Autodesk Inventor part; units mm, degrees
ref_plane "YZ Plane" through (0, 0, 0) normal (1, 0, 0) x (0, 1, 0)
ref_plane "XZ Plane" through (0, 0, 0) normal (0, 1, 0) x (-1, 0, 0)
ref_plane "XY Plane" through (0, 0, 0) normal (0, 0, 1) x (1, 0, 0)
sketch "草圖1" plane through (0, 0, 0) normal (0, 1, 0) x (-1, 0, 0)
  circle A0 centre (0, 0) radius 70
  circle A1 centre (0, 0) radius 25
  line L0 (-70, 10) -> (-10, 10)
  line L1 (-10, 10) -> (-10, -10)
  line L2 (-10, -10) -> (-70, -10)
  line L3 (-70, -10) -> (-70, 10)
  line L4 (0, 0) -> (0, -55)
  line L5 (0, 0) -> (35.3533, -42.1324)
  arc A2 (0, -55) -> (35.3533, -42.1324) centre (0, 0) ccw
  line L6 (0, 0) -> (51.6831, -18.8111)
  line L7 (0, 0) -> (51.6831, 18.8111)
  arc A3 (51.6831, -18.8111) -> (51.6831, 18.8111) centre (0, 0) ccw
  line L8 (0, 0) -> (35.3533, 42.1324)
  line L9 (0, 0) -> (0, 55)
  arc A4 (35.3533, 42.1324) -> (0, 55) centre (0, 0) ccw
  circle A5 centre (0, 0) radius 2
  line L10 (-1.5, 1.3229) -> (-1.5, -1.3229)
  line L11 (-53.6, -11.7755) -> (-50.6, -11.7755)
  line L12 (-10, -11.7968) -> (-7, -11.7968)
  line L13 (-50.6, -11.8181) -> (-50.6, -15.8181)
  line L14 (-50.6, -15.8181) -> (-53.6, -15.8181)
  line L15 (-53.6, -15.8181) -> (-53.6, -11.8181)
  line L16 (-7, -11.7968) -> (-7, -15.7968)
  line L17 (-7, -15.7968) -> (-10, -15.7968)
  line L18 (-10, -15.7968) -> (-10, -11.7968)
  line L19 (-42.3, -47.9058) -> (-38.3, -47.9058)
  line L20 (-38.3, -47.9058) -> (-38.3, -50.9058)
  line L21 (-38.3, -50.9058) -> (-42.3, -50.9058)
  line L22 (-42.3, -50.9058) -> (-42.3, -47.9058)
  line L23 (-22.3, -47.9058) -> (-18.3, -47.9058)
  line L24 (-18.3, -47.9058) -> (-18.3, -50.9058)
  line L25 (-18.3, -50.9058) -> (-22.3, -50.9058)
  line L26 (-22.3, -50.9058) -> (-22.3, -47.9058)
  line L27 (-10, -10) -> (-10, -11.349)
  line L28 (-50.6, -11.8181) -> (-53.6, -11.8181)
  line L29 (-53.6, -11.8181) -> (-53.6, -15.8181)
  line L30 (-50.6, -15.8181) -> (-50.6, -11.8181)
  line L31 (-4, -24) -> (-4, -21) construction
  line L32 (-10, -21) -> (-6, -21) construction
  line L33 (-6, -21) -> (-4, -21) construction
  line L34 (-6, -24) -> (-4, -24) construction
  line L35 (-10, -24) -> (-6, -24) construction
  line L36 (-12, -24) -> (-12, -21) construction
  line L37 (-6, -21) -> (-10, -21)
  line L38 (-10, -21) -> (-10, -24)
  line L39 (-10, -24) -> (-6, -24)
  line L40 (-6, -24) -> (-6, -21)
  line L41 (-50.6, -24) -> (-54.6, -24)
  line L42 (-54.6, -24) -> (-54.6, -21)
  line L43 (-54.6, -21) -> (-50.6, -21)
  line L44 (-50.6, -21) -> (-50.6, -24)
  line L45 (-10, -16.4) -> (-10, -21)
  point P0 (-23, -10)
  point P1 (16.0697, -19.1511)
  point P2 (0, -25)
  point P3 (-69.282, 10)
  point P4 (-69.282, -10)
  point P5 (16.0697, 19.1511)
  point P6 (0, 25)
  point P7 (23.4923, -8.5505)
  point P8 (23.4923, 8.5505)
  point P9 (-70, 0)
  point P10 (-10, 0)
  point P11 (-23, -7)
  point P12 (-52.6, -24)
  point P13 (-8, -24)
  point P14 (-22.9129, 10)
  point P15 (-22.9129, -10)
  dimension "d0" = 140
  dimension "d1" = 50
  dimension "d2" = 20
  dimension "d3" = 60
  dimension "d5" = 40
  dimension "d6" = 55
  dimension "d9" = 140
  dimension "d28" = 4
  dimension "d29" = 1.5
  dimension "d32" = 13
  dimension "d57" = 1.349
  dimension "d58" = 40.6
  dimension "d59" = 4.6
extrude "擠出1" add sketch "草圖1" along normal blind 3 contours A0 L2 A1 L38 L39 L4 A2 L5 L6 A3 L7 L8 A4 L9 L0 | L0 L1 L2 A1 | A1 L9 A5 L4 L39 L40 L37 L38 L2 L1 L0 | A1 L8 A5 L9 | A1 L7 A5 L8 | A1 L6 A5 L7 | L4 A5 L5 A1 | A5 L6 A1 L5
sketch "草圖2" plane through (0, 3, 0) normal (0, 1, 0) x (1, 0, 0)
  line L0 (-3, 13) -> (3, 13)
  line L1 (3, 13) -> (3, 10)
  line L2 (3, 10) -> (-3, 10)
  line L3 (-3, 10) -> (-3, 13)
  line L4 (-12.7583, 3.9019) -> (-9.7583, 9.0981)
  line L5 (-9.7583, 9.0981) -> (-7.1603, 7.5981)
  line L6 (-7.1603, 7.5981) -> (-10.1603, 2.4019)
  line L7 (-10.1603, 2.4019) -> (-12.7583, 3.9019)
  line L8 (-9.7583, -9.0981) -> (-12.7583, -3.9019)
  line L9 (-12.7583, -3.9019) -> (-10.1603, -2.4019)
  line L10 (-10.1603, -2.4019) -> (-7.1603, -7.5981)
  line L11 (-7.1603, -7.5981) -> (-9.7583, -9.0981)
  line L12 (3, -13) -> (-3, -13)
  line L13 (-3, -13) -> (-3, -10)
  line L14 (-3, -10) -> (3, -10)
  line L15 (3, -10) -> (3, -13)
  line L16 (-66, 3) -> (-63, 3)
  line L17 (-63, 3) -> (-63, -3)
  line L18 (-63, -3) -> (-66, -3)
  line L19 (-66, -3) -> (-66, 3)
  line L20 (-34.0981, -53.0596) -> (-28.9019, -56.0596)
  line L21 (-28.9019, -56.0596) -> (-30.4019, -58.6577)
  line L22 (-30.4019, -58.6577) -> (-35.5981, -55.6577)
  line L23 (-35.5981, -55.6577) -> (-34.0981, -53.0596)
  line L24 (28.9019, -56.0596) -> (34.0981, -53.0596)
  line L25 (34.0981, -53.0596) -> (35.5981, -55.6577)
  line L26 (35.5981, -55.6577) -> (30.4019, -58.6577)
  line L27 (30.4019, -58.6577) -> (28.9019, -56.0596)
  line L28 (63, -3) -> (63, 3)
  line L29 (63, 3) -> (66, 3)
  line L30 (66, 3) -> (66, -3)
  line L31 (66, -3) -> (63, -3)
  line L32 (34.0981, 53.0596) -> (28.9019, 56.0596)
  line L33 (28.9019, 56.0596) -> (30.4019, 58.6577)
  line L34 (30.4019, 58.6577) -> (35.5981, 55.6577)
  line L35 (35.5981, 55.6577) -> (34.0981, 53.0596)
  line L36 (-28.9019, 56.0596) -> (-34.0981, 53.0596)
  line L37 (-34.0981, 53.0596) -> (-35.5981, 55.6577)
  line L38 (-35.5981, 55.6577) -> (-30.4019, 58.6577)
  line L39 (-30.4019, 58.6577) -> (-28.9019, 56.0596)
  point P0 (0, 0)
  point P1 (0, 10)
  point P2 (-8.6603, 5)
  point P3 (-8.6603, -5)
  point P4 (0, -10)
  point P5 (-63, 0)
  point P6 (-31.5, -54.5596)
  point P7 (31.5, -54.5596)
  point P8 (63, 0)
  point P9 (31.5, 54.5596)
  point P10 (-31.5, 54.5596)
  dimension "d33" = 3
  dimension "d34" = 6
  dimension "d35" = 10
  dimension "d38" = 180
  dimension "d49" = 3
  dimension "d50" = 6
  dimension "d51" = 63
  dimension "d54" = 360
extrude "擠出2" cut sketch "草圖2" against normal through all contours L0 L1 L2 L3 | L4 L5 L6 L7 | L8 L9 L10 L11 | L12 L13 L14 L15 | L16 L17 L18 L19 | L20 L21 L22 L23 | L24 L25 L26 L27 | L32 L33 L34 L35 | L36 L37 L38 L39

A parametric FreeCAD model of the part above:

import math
import FreeCAD as App
import Part
import Sketcher

V = App.Vector
Q = App.Units.Quantity


def add_polygon(sketch, points):
    """Adds a closed chain of lines whose ends are joined by coincident constraints."""
    first, n = sketch.GeometryCount, len(points)
    for a, b in zip(points, points[1:] + points[:1]):
        sketch.addGeometry(Part.LineSegment(App.Vector(*a, 0), App.Vector(*b, 0)), False)
    for i in range(n):
        sketch.addConstraint(Sketcher.Constraint("Coincident", first + i, 2, first + (i + 1) % n, 1))

doc = App.newDocument("Part")
body = doc.addObject("PartDesign::Body", "Body")

# Sketch on XZ plane
sketch1 = body.newObject("Sketcher::SketchObject", "Sketch")
sketch1.AttachmentSupport = (doc.getObject("XZ_Plane"), [""])
sketch1.MapMode = "FlatFace"
sketch1.addGeometry(Part.ArcOfCircle(Part.Circle(V(0, 0, 0), V(0, 0, 1), 70), math.radians(8.213211), math.radians(351.786789)), False)  # 0
sketch1.addGeometry(Part.LineSegment(V(69.282032, 10, 0), V(22.912878, 10, 0)), False)  # 1
sketch1.addGeometry(Part.ArcOfCircle(Part.Circle(V(0, 0, 0), V(0, 0, 1), 25), math.radians(-23.578178), math.radians(23.578178)), False)  # 2
sketch1.addGeometry(Part.LineSegment(V(22.912878, -10, 0), V(69.282032, -10, 0)), False)  # 3
add_polygon(sketch1, [(10, -24), (10, -21), (6, -21), (6, -24)])  # lines 4-7
sketch1.addGeometry(Part.LineSegment(V(0, -55, 0), V(0, -25, 0)), False)  # 8
sketch1.addGeometry(Part.ArcOfCircle(Part.Circle(V(0, 0, 0), V(0, 0, 1), 25), math.radians(-130.000015), math.radians(-90)), False)  # 9
sketch1.addGeometry(Part.LineSegment(V(-16.069695, -19.151107, 0), V(-35.3533, -42.1324, 0)), False)  # 10
sketch1.addGeometry(Part.ArcOfCircle(Part.Circle(V(0, 0, 0), V(0, 0, 1), 54.999954), math.radians(-130.000015), math.radians(-90)), False)  # 11
sketch1.addGeometry(Part.LineSegment(V(-51.6831, -18.8111, 0), V(-23.492317, -8.5505, 0)), False)  # 12
sketch1.addGeometry(Part.ArcOfCircle(Part.Circle(V(0, 0, 0), V(0, 0, 1), 25), math.radians(160.00001), math.radians(199.99999)), False)  # 13
sketch1.addGeometry(Part.LineSegment(V(-23.492317, 8.5505, 0), V(-51.6831, 18.8111, 0)), False)  # 14
sketch1.addGeometry(Part.ArcOfCircle(Part.Circle(V(0, 0, 0), V(0, 0, 1), 55.000003), math.radians(160.00001), math.radians(199.99999)), False)  # 15
sketch1.addGeometry(Part.LineSegment(V(-35.3533, 42.1324, 0), V(-16.069695, 19.151107, 0)), False)  # 16
sketch1.addGeometry(Part.ArcOfCircle(Part.Circle(V(0, 0, 0), V(0, 0, 1), 25), math.radians(90), math.radians(130.000015)), False)  # 17
sketch1.addGeometry(Part.LineSegment(V(0, 25, 0), V(0, 55, 0)), False)  # 18
sketch1.addGeometry(Part.ArcOfCircle(Part.Circle(V(0, 0, 0), V(0, 0, 1), 55.000003), math.radians(90), math.radians(130.000015)), False)  # 19
add_polygon(sketch1, [(42.3, -50.9058), (42.3, -47.9058), (38.3, -47.9058), (38.3, -50.9058)])  # lines 20-23
add_polygon(sketch1, [(22.3, -50.9058), (22.3, -47.9058), (18.3, -47.9058), (18.3, -50.9058)])  # lines 24-27
add_polygon(sketch1, [(50.6, -21), (50.6, -24), (54.6, -24), (54.6, -21)])  # lines 28-31
add_polygon(sketch1, [(53.6, -11.8181), (50.6, -11.8181), (50.6, -15.8181), (53.6, -15.8181)])  # lines 32-35
add_polygon(sketch1, [(7, -15.7968), (10, -15.7968), (10, -11.7968), (7, -11.7968)])  # lines 36-39
sketch1.addGeometry(Part.Circle(V(0, 0, 0), V(0, 0, 1), 2), False)  # 40
sketch1.addConstraint(Sketcher.Constraint("Coincident", 0, 1, 1, 1))
sketch1.addConstraint(Sketcher.Constraint("Coincident", 1, 2, 2, 2))
sketch1.addConstraint(Sketcher.Constraint("Coincident", 2, 1, 3, 1))
sketch1.addConstraint(Sketcher.Constraint("Coincident", 3, 2, 0, 2))
sketch1.addConstraint(Sketcher.Constraint("Coincident", 8, 2, 9, 2))
sketch1.addConstraint(Sketcher.Constraint("Coincident", 9, 1, 10, 1))
sketch1.addConstraint(Sketcher.Constraint("Coincident", 10, 2, 11, 1))
sketch1.addConstraint(Sketcher.Constraint("Coincident", 11, 2, 8, 1))
sketch1.addConstraint(Sketcher.Constraint("Coincident", 12, 2, 13, 2))
sketch1.addConstraint(Sketcher.Constraint("Coincident", 13, 1, 14, 1))
sketch1.addConstraint(Sketcher.Constraint("Coincident", 14, 2, 15, 1))
sketch1.addConstraint(Sketcher.Constraint("Coincident", 15, 2, 12, 1))
sketch1.addConstraint(Sketcher.Constraint("Coincident", 16, 2, 17, 2))
sketch1.addConstraint(Sketcher.Constraint("Coincident", 17, 1, 18, 1))
sketch1.addConstraint(Sketcher.Constraint("Coincident", 18, 2, 19, 1))
sketch1.addConstraint(Sketcher.Constraint("Coincident", 19, 2, 16, 1))
sketch1.addConstraint(Sketcher.Constraint("Horizontal", 1))
sketch1.addConstraint(Sketcher.Constraint("Horizontal", 3))
sketch1.addConstraint(Sketcher.Constraint("Vertical", 4))
sketch1.addConstraint(Sketcher.Constraint("Horizontal", 5))
sketch1.addConstraint(Sketcher.Constraint("Vertical", 6))
sketch1.addConstraint(Sketcher.Constraint("Horizontal", 7))
sketch1.addConstraint(Sketcher.Constraint("Vertical", 8))
sketch1.addConstraint(Sketcher.Constraint("Vertical", 18))
sketch1.addConstraint(Sketcher.Constraint("Vertical", 20))
sketch1.addConstraint(Sketcher.Constraint("Horizontal", 21))
sketch1.addConstraint(Sketcher.Constraint("Vertical", 22))
sketch1.addConstraint(Sketcher.Constraint("Horizontal", 23))
sketch1.addConstraint(Sketcher.Constraint("Vertical", 24))
sketch1.addConstraint(Sketcher.Constraint("Horizontal", 25))
sketch1.addConstraint(Sketcher.Constraint("Vertical", 26))
sketch1.addConstraint(Sketcher.Constraint("Horizontal", 27))
sketch1.addConstraint(Sketcher.Constraint("Vertical", 28))
sketch1.addConstraint(Sketcher.Constraint("Horizontal", 29))
sketch1.addConstraint(Sketcher.Constraint("Vertical", 30))
sketch1.addConstraint(Sketcher.Constraint("Horizontal", 31))
sketch1.addConstraint(Sketcher.Constraint("Horizontal", 32))
sketch1.addConstraint(Sketcher.Constraint("Vertical", 33))
sketch1.addConstraint(Sketcher.Constraint("Horizontal", 34))
sketch1.addConstraint(Sketcher.Constraint("Vertical", 35))
sketch1.addConstraint(Sketcher.Constraint("Horizontal", 36))
sketch1.addConstraint(Sketcher.Constraint("Vertical", 37))
sketch1.addConstraint(Sketcher.Constraint("Horizontal", 38))
sketch1.addConstraint(Sketcher.Constraint("Vertical", 39))
sketch1.addConstraint(Sketcher.Constraint("Coincident", 0, 3, -1, 1))
sketch1.addConstraint(Sketcher.Constraint("Coincident", 2, 3, -1, 1))
sketch1.addConstraint(Sketcher.Constraint("Coincident", 9, 3, -1, 1))
sketch1.addConstraint(Sketcher.Constraint("Coincident", 11, 3, -1, 1))
sketch1.addConstraint(Sketcher.Constraint("Coincident", 13, 3, -1, 1))
sketch1.addConstraint(Sketcher.Constraint("Coincident", 15, 3, -1, 1))
sketch1.addConstraint(Sketcher.Constraint("Coincident", 17, 3, -1, 1))
sketch1.addConstraint(Sketcher.Constraint("Coincident", 19, 3, -1, 1))
sketch1.addConstraint(Sketcher.Constraint("Coincident", 40, 3, -1, 1))
sketch1.addConstraint(Sketcher.Constraint("Equal", 2, 9))
sketch1.addConstraint(Sketcher.Constraint("Equal", 9, 13))
sketch1.addConstraint(Sketcher.Constraint("Equal", 11, 15))
sketch1.addConstraint(Sketcher.Constraint("Equal", 13, 17))
sketch1.addConstraint(Sketcher.Constraint("Equal", 15, 19))
sketch1.addConstraint(Sketcher.Constraint("PointOnObject", 8, 2, -2))
sketch1.addConstraint(Sketcher.Constraint("PointOnObject", 17, 1, -2))
sketch1.addConstraint(Sketcher.Constraint("Horizontal", 21, 2, 24, 2))
sketch1.addConstraint(Sketcher.Constraint("Horizontal", 23, 2, 26, 2))
sketch1.addConstraint(Sketcher.Constraint("Horizontal", 7, 2, 28, 2))
sketch1.addConstraint(Sketcher.Constraint("Horizontal", 5, 2, 30, 2))
sketch1.addConstraint(Sketcher.Constraint("Vertical", 1, 2, 2, 1))
sketch1.addConstraint(Sketcher.Constraint("Vertical", 12, 2, 13, 1))
sketch1.addConstraint(Sketcher.Constraint("Vertical", 14, 2, 15, 2))
sketch1.addConstraint(Sketcher.Constraint("Vertical", 9, 1, 16, 2))
sketch1.addConstraint(Sketcher.Constraint("Vertical", 10, 2, 19, 2))
sketch1.addConstraint(Sketcher.Constraint("Vertical", 31, 2, 32, 2))
sketch1.addConstraint(Sketcher.Constraint("Vertical", 7, 2, 36, 2))
sketch1.addConstraint(Sketcher.Constraint("Equal", 7, 21))
sketch1.addConstraint(Sketcher.Constraint("Equal", 23, 25))
sketch1.addConstraint(Sketcher.Constraint("Equal", 27, 29))
sketch1.addConstraint(Sketcher.Constraint("Equal", 34, 36))
sketch1.addConstraint(Sketcher.Constraint("Equal", 38, 4))
sketch1.addConstraint(Sketcher.Constraint("Equal", 6, 20))
sketch1.addConstraint(Sketcher.Constraint("Equal", 31, 33))
sketch1.addConstraint(Sketcher.Constraint("Equal", 35, 37))
sketch1.addConstraint(Sketcher.Constraint("Diameter", 40, Q("4 mm")))
sketch1.addConstraint(Sketcher.Constraint("Radius", 0, Q("70 mm")))
sketch1.addConstraint(Sketcher.Constraint("Radius", 2, Q("25 mm")))
sketch1.addConstraint(Sketcher.Constraint("Radius", 11, Q("55 mm")))
sketch1.addConstraint(Sketcher.Constraint("DistanceX", 5, 2, 5, 1, Q("4 mm")))
sketch1.addConstraint(Sketcher.Constraint("Angle", 12, Q("20 deg")))
sketch1.addConstraint(Sketcher.Constraint("Angle", 16, Q("-50 deg")))
sketch1.addConstraint(Sketcher.Constraint("DistanceY", 2, 1, 1, 2, Q("20 mm")))
sketch1.addConstraint(Sketcher.Constraint("DistanceY", 8, 2, 5, 2, Q("4 mm")))
sketch1.addConstraint(Sketcher.Constraint("DistanceX", 24, 2, 20, 2, Q("20 mm")))
sketch1.addConstraint(Sketcher.Constraint("DistanceX", 32, 2, 32, 1, Q("3 mm")))
sketch1.addConstraint(Sketcher.Constraint("DistanceX", -1, 1, 4, 2, Q("10 mm")))
sketch1.addConstraint(Sketcher.Constraint("DistanceX", -1, 1, 20, 2, Q("42.3 mm")))
sketch1.addConstraint(Sketcher.Constraint("DistanceX", -1, 1, 28, 2, Q("50.6 mm")))
sketch1.addConstraint(Sketcher.Constraint("DistanceY", 9, 1, 15, 2, Q("0.34 mm")))
sketch1.addConstraint(Sketcher.Constraint("DistanceY", 9, 1, -1, 1, Q("19.151 mm")))
sketch1.addConstraint(Sketcher.Constraint("DistanceY", 32, 2, -1, 1, Q("11.818 mm")))
sketch1.addConstraint(Sketcher.Constraint("DistanceY", 20, 2, -1, 1, Q("47.9058 mm")))
sketch1.addConstraint(Sketcher.Constraint("DistanceY", 36, 2, -1, 1, Q("15.7968 mm")))
pad1 = body.newObject("PartDesign::Pad", "Pad")
pad1.Profile = sketch1
pad1.Length = 3
pad1.Reversed = True

# Sketch on XZ plane
sketch2 = body.newObject("Sketcher::SketchObject", "Sketch001")
sketch2.AttachmentSupport = (doc.getObject("XZ_Plane"), [""])
sketch2.MapMode = "FlatFace"
sketch2.AttachmentOffset = App.Placement(V(0, 0, -3), App.Rotation())
add_polygon(sketch2, [(3, -13), (-3, -13), (-3, -10), (3, -10)])  # lines 0-3
add_polygon(sketch2, [(-9.7583, -9.0981), (-12.7583, -3.9019), (-10.1603, -2.4019), (-7.1603, -7.5981)])  # lines 4-7
add_polygon(sketch2, [(-12.7583, 3.9019), (-9.7583, 9.0981), (-7.1603, 7.5981), (-10.1603, 2.4019)])  # lines 8-11
add_polygon(sketch2, [(-3, 13), (3, 13), (3, 10), (-3, 10)])  # lines 12-15
add_polygon(sketch2, [(-63, -3), (-66, -3), (-66, 3), (-63, 3)])  # lines 16-19
add_polygon(sketch2, [(-28.9019, 56.0596), (-34.0981, 53.0596), (-35.5981, 55.6577), (-30.4019, 58.6577)])  # lines 20-23
add_polygon(sketch2, [(34.0981, 53.0596), (28.9019, 56.0596), (30.4019, 58.6577), (35.5981, 55.6577)])  # lines 24-27
add_polygon(sketch2, [(28.9019, -56.0596), (34.0981, -53.0596), (35.5981, -55.6577), (30.4019, -58.6577)])  # lines 28-31
add_polygon(sketch2, [(-34.0981, -53.0596), (-28.9019, -56.0596), (-30.4019, -58.6577), (-35.5981, -55.6577)])  # lines 32-35
sketch2.addConstraint(Sketcher.Constraint("Horizontal", 0))
sketch2.addConstraint(Sketcher.Constraint("Vertical", 1))
sketch2.addConstraint(Sketcher.Constraint("Horizontal", 2))
sketch2.addConstraint(Sketcher.Constraint("Vertical", 3))
sketch2.addConstraint(Sketcher.Constraint("Horizontal", 12))
sketch2.addConstraint(Sketcher.Constraint("Vertical", 13))
sketch2.addConstraint(Sketcher.Constraint("Horizontal", 14))
sketch2.addConstraint(Sketcher.Constraint("Vertical", 15))
sketch2.addConstraint(Sketcher.Constraint("Horizontal", 16))
sketch2.addConstraint(Sketcher.Constraint("Vertical", 17))
sketch2.addConstraint(Sketcher.Constraint("Horizontal", 18))
sketch2.addConstraint(Sketcher.Constraint("Vertical", 19))
sketch2.addConstraint(Sketcher.Constraint("Symmetric", 0, 2, 12, 2, -1, 1))
sketch2.addConstraint(Sketcher.Constraint("Symmetric", 2, 2, 14, 2, -1, 1))
sketch2.addConstraint(Sketcher.Constraint("Symmetric", 20, 2, 28, 2, -1, 1))
sketch2.addConstraint(Sketcher.Constraint("Symmetric", 21, 2, 29, 2, -1, 1))
sketch2.addConstraint(Sketcher.Constraint("Symmetric", 22, 2, 30, 2, -1, 1))
sketch2.addConstraint(Sketcher.Constraint("Symmetric", 23, 2, 31, 2, -1, 1))
sketch2.addConstraint(Sketcher.Constraint("Symmetric", 24, 2, 32, 2, -1, 1))
sketch2.addConstraint(Sketcher.Constraint("Symmetric", 25, 2, 33, 2, -1, 1))
sketch2.addConstraint(Sketcher.Constraint("Symmetric", 26, 2, 34, 2, -1, 1))
sketch2.addConstraint(Sketcher.Constraint("Symmetric", 27, 2, 35, 2, -1, 1))
sketch2.addConstraint(Sketcher.Constraint("Symmetric", 23, 2, 24, 2, -2))
sketch2.addConstraint(Sketcher.Constraint("Symmetric", 22, 2, 25, 2, -2))
sketch2.addConstraint(Sketcher.Constraint("Symmetric", 21, 2, 26, 2, -2))
sketch2.addConstraint(Sketcher.Constraint("Symmetric", 20, 2, 27, 2, -2))
sketch2.addConstraint(Sketcher.Constraint("Symmetric", 7, 2, 8, 2, -1))
sketch2.addConstraint(Sketcher.Constraint("Symmetric", 6, 2, 9, 2, -1))
sketch2.addConstraint(Sketcher.Constraint("Symmetric", 5, 2, 10, 2, -1))
sketch2.addConstraint(Sketcher.Constraint("Symmetric", 4, 2, 11, 2, -1))
sketch2.addConstraint(Sketcher.Constraint("Perpendicular", 4, 5))
sketch2.addConstraint(Sketcher.Constraint("Perpendicular", 5, 6))
sketch2.addConstraint(Sketcher.Constraint("Perpendicular", 6, 7))
sketch2.addConstraint(Sketcher.Constraint("Parallel", 7, 20))
sketch2.addConstraint(Sketcher.Constraint("Perpendicular", 20, 21))
sketch2.addConstraint(Sketcher.Constraint("Perpendicular", 21, 22))
sketch2.addConstraint(Sketcher.Constraint("Perpendicular", 22, 23))
sketch2.addConstraint(Sketcher.Constraint("Vertical", 3, 2, 12, 2))
sketch2.addConstraint(Sketcher.Constraint("Equal", 18, 1))
sketch2.addConstraint(Sketcher.Constraint("Equal", 14, 17))
sketch2.addConstraint(Sketcher.Constraint("Equal", 10, 20))
sketch2.addConstraint(Sketcher.Constraint("Equal", 11, 21))
sketch2.addConstraint(Sketcher.Constraint("DistanceX", 0, 2, 0, 1, Q("6 mm")))
sketch2.addConstraint(Sketcher.Constraint("DistanceX", 16, 2, 16, 1, Q("3 mm")))
sketch2.addConstraint(Sketcher.Constraint("Distance", 4, Q("6 mm")))
sketch2.addConstraint(Sketcher.Constraint("Distance", 5, Q("3 mm")))
sketch2.addConstraint(Sketcher.Constraint("DistanceY", 1, 2, -1, 1, Q("10 mm")))
sketch2.addConstraint(Sketcher.Constraint("DistanceY", 16, 2, -1, 1, Q("3 mm")))
sketch2.addConstraint(Sketcher.Constraint("DistanceX", 18, 2, -1, 1, Q("63 mm")))
sketch2.addConstraint(Sketcher.Constraint("DistanceX", 5, 2, 6, 2, Q("3 mm")))
sketch2.addConstraint(Sketcher.Constraint("DistanceY", 5, 2, 9, 2, Q("10 mm")))
sketch2.addConstraint(Sketcher.Constraint("DistanceX", 20, 2, -1, 1, Q("34.098 mm")))
sketch2.addConstraint(Sketcher.Constraint("DistanceX", 4, 2, -1, 1, Q("12.7583 mm")))
sketch2.addConstraint(Sketcher.Constraint("DistanceY", -1, 1, 20, 2, Q("53.0596 mm")))
pocket1 = body.newObject("PartDesign::Pocket", "Pocket")
pocket1.Profile = sketch2
pocket1.Type = "ThroughAll"
pocket1.Reversed = True

doc.recompute()
